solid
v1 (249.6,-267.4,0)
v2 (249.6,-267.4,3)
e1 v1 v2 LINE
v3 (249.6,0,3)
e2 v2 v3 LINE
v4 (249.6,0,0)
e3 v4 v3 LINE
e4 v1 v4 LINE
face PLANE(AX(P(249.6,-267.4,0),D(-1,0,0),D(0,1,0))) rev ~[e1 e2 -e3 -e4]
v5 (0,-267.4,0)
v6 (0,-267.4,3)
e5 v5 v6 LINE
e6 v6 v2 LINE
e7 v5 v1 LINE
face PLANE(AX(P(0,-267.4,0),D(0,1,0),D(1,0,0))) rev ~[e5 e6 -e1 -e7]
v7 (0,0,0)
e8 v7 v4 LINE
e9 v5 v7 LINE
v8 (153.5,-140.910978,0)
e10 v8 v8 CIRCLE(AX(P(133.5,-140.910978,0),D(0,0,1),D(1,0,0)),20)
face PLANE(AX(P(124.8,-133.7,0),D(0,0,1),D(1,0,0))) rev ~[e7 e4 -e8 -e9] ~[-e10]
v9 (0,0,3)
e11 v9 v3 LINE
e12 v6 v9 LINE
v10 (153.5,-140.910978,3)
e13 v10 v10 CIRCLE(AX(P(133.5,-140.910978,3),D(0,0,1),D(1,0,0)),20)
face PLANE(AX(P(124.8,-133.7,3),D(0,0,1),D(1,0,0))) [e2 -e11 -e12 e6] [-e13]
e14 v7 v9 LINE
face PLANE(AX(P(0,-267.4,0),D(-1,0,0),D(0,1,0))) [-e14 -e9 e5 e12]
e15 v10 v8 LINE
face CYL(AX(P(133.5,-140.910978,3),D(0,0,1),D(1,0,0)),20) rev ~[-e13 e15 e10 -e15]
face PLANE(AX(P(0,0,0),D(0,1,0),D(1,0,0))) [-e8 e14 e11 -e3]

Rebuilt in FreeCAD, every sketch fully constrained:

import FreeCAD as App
import Part
import Sketcher

V = App.Vector
Q = App.Units.Quantity


def add_polygon(sketch, points):
    """Adds a closed chain of lines whose ends are joined by coincident constraints."""
    first, n = sketch.GeometryCount, len(points)
    for a, b in zip(points, points[1:] + points[:1]):
        sketch.addGeometry(Part.LineSegment(App.Vector(*a, 0), App.Vector(*b, 0)), False)
    for i in range(n):
        sketch.addConstraint(Sketcher.Constraint("Coincident", first + i, 2, first + (i + 1) % n, 1))

doc = App.newDocument("Part")
body = doc.addObject("PartDesign::Body", "Body")

# Sketch on XY plane
sketch1 = doc.addObject("Sketcher::SketchObject", "Sketch")
body.addObject(sketch1)
sketch1.AttachmentSupport = (doc.XY_Plane, [""])
sketch1.MapMode = "FlatFace"
add_polygon(sketch1, [(0, 0), (0, -267), (250, -267), (250, 0)])  # lines 0-3
sketch1.addConstraint([
    Sketcher.Constraint("Vertical", 0),
    Sketcher.Constraint("Horizontal", 1),
    Sketcher.Constraint("Vertical", 2),
    Sketcher.Constraint("Horizontal", 3),
    Sketcher.Constraint("Coincident", 3, 2, -1, 1),
    Sketcher.Constraint("DistanceX", 1, 1, 1, 2, Q("249.6 mm")),
    Sketcher.Constraint("DistanceY", 0, 2, 0, 1, Q("267.4 mm")),
])
pad1 = doc.addObject("PartDesign::Pad", "Pad")
body.addObject(pad1)
pad1.Profile = sketch1
pad1.Length = 3

# Sketch on XY plane
sketch2 = doc.addObject("Sketcher::SketchObject", "Sketch001")
body.addObject(sketch2)
sketch2.AttachmentSupport = (doc.XY_Plane, [""])
sketch2.MapMode = "FlatFace"
sketch2.AttachmentOffset = App.Placement(V(0, 0, 3), App.Rotation())
sketch2.addGeometry(Part.Circle(V(134, -141, 0), V(0, 0, 1), 20), False)
sketch2.addConstraint([
    Sketcher.Constraint("Diameter", 0, Q("40 mm")),
    Sketcher.Constraint("DistanceX", -1, 1, 0, 3, Q("133.5 mm")),
    Sketcher.Constraint("DistanceY", 0, 3, -1, 1, Q("140.910978 mm")),
])
pocket1 = doc.addObject("PartDesign::Pocket", "Pocket")
body.addObject(pocket1)
pocket1.Profile = sketch2
pocket1.Type = "ThroughAll"

doc.recompute()
